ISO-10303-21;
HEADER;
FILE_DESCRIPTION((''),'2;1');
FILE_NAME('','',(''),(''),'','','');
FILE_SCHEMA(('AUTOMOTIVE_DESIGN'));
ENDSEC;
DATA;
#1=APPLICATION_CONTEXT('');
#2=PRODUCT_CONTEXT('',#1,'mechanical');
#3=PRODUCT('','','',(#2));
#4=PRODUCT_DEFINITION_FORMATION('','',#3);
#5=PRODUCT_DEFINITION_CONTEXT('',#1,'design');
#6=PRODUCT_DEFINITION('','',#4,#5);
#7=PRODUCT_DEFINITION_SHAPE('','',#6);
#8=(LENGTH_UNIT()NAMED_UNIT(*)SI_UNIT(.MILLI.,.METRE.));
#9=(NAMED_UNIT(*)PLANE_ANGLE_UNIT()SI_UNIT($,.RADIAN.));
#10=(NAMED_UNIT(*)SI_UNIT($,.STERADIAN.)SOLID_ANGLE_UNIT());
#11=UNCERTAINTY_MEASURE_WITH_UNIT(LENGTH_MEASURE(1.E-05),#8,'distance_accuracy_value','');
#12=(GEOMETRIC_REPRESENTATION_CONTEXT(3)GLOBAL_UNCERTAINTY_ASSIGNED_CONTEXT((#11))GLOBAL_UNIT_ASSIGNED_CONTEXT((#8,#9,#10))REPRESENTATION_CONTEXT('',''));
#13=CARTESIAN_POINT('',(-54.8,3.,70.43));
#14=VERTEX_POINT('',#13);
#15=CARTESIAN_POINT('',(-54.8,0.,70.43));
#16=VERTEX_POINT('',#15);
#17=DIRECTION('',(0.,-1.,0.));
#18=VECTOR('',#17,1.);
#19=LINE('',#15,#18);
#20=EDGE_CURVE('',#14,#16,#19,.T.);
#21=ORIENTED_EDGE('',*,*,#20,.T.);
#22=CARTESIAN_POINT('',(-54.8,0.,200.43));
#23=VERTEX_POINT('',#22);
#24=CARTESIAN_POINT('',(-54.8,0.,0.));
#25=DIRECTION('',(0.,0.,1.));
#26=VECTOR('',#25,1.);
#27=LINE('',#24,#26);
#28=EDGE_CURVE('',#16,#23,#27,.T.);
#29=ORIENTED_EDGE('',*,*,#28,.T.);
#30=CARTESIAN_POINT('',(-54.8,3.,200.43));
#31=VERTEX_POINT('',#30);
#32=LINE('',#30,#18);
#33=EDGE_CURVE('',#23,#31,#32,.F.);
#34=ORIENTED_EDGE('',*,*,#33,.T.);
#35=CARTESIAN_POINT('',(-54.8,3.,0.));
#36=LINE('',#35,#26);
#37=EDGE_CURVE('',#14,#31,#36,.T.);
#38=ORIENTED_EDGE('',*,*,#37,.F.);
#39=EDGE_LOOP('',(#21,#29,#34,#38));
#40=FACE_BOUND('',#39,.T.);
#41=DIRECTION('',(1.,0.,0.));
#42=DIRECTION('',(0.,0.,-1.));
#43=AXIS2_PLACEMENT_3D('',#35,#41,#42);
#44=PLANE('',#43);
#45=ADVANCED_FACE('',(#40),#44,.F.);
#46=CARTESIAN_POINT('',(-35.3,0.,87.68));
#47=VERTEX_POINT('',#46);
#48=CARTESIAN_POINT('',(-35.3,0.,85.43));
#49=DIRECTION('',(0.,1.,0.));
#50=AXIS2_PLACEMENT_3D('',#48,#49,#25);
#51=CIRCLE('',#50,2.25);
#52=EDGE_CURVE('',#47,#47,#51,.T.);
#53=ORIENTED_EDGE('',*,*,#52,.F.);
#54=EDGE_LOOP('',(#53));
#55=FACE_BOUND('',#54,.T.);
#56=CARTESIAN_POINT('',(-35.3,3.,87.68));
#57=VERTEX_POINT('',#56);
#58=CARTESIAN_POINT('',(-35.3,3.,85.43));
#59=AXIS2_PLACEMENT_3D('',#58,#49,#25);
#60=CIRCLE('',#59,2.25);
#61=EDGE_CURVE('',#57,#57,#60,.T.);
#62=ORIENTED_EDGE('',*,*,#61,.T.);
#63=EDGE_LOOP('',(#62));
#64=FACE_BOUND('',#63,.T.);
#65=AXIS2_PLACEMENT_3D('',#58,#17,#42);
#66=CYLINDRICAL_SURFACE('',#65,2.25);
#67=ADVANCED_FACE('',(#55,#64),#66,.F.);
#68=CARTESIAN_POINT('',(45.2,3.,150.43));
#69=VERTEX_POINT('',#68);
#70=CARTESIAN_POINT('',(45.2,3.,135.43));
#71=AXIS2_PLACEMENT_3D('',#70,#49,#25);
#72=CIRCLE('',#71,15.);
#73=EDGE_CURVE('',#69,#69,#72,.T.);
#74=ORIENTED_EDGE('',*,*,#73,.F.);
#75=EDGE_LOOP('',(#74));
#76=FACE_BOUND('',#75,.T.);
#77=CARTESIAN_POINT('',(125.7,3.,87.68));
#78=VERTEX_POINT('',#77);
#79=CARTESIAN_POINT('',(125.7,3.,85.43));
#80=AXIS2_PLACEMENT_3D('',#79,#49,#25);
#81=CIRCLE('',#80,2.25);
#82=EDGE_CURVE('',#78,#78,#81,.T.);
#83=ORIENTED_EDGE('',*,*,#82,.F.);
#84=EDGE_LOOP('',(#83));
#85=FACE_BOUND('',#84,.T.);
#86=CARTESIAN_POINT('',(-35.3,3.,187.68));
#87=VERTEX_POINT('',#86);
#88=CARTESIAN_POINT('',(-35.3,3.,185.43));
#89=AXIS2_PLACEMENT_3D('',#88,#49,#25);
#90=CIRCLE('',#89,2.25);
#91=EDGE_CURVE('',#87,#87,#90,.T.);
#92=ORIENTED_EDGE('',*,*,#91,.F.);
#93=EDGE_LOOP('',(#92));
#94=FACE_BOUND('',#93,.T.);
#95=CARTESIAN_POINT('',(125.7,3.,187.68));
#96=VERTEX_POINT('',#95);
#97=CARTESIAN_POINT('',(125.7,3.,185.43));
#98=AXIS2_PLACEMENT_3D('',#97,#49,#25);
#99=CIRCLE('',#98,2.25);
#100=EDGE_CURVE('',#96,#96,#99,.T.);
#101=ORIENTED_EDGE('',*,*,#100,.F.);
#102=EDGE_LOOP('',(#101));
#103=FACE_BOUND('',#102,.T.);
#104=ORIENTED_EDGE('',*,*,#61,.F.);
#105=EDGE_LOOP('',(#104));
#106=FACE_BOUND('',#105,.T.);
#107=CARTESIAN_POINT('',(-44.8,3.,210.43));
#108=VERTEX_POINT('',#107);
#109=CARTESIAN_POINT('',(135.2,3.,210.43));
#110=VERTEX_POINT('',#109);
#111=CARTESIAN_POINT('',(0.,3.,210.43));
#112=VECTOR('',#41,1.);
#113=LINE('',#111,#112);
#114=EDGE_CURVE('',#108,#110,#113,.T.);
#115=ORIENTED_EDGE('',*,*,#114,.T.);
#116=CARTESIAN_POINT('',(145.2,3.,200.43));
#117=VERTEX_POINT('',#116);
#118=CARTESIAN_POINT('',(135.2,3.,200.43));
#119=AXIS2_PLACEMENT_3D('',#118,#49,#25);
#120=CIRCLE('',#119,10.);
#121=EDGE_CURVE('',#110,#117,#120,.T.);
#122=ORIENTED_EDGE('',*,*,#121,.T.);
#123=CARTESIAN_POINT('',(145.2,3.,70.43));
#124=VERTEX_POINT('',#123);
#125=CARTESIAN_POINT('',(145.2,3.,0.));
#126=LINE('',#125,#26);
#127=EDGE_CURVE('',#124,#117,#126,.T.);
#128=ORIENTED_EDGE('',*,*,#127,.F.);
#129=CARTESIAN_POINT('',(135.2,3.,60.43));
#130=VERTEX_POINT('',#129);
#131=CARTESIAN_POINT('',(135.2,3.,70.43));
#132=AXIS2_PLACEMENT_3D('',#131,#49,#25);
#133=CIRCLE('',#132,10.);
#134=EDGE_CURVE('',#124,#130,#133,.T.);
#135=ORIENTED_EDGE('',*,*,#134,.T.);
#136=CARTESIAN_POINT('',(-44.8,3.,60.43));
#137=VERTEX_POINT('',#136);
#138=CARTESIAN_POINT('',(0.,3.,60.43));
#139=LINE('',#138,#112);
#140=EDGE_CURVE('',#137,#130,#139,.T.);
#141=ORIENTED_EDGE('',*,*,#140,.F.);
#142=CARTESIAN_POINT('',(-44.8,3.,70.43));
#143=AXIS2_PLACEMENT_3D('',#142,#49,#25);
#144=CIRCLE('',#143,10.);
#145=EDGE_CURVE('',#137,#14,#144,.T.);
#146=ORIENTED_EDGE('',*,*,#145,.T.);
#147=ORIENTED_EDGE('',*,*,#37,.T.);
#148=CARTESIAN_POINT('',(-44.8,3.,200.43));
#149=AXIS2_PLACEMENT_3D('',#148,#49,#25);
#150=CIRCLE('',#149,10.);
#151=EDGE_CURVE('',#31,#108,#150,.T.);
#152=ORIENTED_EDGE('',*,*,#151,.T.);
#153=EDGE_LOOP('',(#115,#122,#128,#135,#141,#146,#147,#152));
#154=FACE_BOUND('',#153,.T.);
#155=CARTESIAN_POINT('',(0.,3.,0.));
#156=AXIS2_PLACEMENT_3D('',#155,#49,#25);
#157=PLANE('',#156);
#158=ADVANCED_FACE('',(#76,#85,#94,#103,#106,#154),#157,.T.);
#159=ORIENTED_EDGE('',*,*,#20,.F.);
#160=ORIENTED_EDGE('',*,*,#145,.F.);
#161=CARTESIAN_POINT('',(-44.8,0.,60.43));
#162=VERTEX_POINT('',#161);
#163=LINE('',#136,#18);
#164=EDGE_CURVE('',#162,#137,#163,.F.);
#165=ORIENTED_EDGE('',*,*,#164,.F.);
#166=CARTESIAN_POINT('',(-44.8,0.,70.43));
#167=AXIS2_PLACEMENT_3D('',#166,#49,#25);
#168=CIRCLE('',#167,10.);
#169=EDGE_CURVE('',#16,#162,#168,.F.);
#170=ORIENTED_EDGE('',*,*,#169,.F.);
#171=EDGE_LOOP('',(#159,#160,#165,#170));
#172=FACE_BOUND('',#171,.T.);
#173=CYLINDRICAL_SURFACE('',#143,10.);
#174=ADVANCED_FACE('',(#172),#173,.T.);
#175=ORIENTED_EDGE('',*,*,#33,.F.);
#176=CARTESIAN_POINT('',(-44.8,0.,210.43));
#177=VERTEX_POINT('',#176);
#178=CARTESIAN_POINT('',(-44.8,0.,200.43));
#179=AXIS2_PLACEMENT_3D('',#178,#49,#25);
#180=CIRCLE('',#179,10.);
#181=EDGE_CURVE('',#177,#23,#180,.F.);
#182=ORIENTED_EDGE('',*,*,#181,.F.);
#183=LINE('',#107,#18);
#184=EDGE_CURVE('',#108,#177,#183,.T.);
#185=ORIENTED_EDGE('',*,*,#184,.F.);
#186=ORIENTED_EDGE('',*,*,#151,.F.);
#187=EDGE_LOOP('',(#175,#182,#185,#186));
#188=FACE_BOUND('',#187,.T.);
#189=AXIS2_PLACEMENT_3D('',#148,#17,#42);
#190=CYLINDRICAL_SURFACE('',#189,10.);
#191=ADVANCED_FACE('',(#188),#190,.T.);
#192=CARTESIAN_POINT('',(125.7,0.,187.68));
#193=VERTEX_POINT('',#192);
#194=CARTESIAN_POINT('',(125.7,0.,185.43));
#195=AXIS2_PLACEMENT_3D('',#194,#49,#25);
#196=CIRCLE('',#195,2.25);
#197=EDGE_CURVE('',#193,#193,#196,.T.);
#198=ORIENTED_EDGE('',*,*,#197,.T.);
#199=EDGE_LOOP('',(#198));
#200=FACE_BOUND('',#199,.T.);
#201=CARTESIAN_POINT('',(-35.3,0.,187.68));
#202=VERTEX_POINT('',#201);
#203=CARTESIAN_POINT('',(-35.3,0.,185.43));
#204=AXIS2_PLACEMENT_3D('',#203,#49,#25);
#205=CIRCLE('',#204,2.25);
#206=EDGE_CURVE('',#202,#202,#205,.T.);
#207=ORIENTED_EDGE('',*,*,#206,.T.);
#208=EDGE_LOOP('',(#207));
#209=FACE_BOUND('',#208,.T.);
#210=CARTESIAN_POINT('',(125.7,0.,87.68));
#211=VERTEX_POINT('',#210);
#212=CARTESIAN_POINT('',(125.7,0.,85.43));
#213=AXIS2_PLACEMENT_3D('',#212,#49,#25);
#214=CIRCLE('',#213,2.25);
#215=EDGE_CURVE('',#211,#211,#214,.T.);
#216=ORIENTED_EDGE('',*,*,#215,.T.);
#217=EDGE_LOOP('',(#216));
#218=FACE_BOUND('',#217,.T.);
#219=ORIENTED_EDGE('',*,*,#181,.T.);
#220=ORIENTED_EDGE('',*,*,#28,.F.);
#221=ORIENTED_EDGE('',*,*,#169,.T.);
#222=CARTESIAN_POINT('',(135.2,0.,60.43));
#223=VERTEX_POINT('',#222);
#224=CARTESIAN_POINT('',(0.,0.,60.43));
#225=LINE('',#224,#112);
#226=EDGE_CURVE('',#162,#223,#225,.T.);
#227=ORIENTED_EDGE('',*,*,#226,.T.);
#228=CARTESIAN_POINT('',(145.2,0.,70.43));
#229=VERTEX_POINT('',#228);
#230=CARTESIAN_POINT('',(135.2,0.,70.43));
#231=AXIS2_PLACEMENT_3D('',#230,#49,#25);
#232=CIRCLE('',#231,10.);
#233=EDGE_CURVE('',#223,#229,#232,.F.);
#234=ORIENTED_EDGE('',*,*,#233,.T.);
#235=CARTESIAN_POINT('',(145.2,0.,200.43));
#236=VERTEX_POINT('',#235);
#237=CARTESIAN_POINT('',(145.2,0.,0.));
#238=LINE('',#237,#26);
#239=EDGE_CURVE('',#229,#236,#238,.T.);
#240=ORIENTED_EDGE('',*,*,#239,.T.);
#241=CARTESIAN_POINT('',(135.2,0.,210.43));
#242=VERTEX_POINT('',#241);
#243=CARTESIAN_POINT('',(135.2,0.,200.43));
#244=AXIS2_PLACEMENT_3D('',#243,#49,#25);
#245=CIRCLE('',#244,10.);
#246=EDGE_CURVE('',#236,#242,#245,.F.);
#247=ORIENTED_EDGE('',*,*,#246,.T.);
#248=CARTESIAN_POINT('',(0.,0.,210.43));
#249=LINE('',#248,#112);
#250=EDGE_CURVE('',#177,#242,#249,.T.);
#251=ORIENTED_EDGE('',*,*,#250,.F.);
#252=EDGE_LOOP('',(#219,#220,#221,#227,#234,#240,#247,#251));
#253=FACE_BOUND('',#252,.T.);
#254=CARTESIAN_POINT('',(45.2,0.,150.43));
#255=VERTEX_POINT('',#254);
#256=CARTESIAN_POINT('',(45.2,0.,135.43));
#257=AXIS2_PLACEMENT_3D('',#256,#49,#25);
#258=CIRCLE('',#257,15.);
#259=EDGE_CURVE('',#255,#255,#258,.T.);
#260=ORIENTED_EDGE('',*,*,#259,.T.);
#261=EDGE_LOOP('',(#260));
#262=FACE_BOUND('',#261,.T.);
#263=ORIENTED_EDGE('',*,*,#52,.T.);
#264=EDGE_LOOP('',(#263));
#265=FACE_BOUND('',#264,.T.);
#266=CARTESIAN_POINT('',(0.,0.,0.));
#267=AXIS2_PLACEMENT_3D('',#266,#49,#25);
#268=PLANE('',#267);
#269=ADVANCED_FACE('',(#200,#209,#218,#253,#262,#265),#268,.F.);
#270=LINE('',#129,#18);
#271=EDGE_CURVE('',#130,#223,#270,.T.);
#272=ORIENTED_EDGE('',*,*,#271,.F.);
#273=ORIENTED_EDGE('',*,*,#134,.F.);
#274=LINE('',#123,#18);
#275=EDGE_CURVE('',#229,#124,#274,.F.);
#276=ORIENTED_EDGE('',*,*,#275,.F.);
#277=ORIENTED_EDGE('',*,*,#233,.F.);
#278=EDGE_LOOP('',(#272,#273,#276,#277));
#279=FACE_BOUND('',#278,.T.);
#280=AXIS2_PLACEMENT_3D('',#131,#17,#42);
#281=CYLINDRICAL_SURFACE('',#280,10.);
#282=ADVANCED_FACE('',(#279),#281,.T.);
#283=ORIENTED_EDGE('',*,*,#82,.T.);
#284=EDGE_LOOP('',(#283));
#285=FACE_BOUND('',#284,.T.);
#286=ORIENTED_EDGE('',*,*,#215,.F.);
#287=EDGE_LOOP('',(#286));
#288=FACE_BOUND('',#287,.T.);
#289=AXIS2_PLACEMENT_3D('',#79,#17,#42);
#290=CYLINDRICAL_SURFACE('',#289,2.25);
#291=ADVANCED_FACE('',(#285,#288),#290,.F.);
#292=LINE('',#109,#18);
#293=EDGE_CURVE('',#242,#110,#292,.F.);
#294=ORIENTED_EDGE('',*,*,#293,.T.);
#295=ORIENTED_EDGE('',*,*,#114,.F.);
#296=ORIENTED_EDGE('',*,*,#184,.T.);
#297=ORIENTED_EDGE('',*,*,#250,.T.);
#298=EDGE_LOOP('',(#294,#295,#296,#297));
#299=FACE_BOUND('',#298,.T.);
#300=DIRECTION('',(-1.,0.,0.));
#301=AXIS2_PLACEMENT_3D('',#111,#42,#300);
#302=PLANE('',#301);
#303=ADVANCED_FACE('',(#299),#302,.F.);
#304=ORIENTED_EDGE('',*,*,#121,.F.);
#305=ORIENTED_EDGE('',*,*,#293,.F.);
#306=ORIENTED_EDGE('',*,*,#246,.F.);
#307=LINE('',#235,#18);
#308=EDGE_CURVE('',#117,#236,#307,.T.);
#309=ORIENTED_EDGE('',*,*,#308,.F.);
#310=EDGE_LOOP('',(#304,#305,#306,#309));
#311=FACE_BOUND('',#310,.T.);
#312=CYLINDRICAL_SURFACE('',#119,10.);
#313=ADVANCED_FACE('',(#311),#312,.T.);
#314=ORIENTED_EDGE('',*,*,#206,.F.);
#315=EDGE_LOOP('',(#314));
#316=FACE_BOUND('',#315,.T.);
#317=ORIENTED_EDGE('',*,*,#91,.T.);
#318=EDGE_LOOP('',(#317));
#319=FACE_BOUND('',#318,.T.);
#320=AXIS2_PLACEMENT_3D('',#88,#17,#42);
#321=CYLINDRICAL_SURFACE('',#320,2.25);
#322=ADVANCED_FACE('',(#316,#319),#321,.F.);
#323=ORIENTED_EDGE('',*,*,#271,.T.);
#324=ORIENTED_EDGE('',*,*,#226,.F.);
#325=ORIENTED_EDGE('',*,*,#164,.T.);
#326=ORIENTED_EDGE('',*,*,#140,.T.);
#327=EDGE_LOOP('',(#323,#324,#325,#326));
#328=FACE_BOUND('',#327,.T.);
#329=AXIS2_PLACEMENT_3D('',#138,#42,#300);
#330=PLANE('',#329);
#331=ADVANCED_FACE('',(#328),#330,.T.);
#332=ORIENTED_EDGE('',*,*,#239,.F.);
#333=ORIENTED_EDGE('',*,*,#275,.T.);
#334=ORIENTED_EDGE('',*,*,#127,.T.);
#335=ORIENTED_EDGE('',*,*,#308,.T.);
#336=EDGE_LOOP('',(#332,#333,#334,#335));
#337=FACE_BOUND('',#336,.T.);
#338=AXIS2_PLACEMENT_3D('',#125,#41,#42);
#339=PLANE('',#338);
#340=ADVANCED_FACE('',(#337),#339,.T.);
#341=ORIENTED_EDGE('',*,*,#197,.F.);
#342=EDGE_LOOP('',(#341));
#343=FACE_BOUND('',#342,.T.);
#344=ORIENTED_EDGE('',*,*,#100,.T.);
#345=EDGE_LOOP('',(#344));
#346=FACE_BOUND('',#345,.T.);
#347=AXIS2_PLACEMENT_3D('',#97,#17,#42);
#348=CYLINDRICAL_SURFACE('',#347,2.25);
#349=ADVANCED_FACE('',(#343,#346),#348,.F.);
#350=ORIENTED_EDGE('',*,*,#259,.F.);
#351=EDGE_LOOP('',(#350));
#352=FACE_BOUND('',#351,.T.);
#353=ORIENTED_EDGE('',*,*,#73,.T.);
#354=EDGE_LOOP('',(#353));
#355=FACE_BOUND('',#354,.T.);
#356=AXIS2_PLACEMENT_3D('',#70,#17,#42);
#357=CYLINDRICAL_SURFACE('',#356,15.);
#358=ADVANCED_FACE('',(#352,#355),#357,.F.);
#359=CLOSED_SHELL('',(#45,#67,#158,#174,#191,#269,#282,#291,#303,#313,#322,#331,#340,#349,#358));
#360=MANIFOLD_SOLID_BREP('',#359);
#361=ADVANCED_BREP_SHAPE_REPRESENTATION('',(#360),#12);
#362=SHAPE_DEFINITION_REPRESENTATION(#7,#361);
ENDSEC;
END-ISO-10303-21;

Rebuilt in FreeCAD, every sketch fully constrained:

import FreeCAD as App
import Part
import Sketcher

V = App.Vector
Q = App.Units.Quantity


def edges_at(feature, points):
    """Names of the edges that pass closest to the given points."""
    edges = feature.Shape.Edges
    near = lambda p: min(range(len(edges)), key=lambda i: edges[i].distToShape(Part.Vertex(*p))[0])
    return sorted({f"Edge{near(p) + 1}" for p in points})

doc = App.newDocument("Part")
params = doc.addObject("Spreadsheet::Sheet", "Params")
for row, (alias, value) in enumerate([
    ("sketch1_diameter", "30 mm"),
    ("sketch1_diameter2", "4.5 mm"),
    ("sketch1_width", "200 mm"),
    ("sketch1_height", "150 mm"),
    ("pad1_length", "3 mm"),
    ("fillet_radius", "10 mm"),
], start=1):
    params.set(f"A{row}", alias)
    params.set(f"B{row}", "=" + value)
    params.setAlias(f"B{row}", alias)

body = doc.addObject("PartDesign::Body", "Body")

# Sketch on XZ plane
sketch1 = doc.addObject("Sketcher::SketchObject", "Sketch")
body.addObject(sketch1)
sketch1.AttachmentSupport = (doc.XZ_Plane, [""])
sketch1.MapMode = "FlatFace"
sketch1.addGeometry(Part.LineSegment(V(-54.8, 60.4, 0), V(-54.8, 210.4, 0)), False)
sketch1.addGeometry(Part.LineSegment(V(-54.8, 210.4, 0), V(145.2, 210.4, 0)), False)
sketch1.addGeometry(Part.LineSegment(V(145.2, 210.4, 0), V(145.2, 60.4, 0)), False)
sketch1.addGeometry(Part.LineSegment(V(145.2, 60.4, 0), V(-54.8, 60.4, 0)), False)
sketch1.addGeometry(Part.Circle(V(-35.3, 185.4, 0), V(0, 0, 1), 2.2), False)
sketch1.addGeometry(Part.Circle(V(125.7, 185.4, 0), V(0, 0, 1), 2.2), False)
sketch1.addGeometry(Part.Circle(V(-35.3, 85.4, 0), V(0, 0, 1), 2.2), False)
sketch1.addGeometry(Part.Circle(V(45.2, 135.4, 0), V(0, 0, 1), 15), False)
sketch1.addGeometry(Part.Circle(V(125.7, 85.4, 0), V(0, 0, 1), 2.2), False)
sketch1.addConstraint(Sketcher.Constraint("Coincident", 0, 2, 1, 1))
sketch1.addConstraint(Sketcher.Constraint("Coincident", 1, 2, 2, 1))
sketch1.addConstraint(Sketcher.Constraint("Coincident", 2, 2, 3, 1))
sketch1.addConstraint(Sketcher.Constraint("Coincident", 3, 2, 0, 1))
sketch1.addConstraint(Sketcher.Constraint("Vertical", 0))
sketch1.addConstraint(Sketcher.Constraint("Horizontal", 1))
sketch1.addConstraint(Sketcher.Constraint("Vertical", 2))
sketch1.addConstraint(Sketcher.Constraint("Horizontal", 3))
sketch1.addConstraint(Sketcher.Constraint("Equal", 4, 5))
sketch1.addConstraint(Sketcher.Constraint("Equal", 5, 6))
sketch1.addConstraint(Sketcher.Constraint("Equal", 6, 8))
sketch1.addConstraint(Sketcher.Constraint("Horizontal", 4, 3, 5, 3))
sketch1.addConstraint(Sketcher.Constraint("Horizontal", 6, 3, 8, 3))
sketch1.addConstraint(Sketcher.Constraint("Vertical", 4, 3, 6, 3))
sketch1.addConstraint(Sketcher.Constraint("Vertical", 5, 3, 8, 3))
sketch1.addConstraint(Sketcher.Constraint("Diameter", 7, Q("30 mm")))
sketch1.addConstraint(Sketcher.Constraint("Diameter", 4, Q("4.5 mm")))
sketch1.addConstraint(Sketcher.Constraint("DistanceX", 1, 1, 1, 2, Q("200 mm")))
sketch1.addConstraint(Sketcher.Constraint("DistanceY", 0, 1, 0, 2, Q("150 mm")))
sketch1.addConstraint(Sketcher.Constraint("DistanceX", 4, 3, 5, 3, Q("161 mm")))
sketch1.addConstraint(Sketcher.Constraint("DistanceY", 6, 3, 4, 3, Q("100 mm")))
sketch1.addConstraint(Sketcher.Constraint("DistanceY", 7, 3, 4, 3, Q("50 mm")))
sketch1.addConstraint(Sketcher.Constraint("DistanceY", 4, 3, 0, 2, Q("25 mm")))
sketch1.addConstraint(Sketcher.Constraint("DistanceX", 0, 2, 7, 3, Q("100 mm")))
sketch1.addConstraint(Sketcher.Constraint("DistanceX", 4, 3, -1, 1, Q("35.3 mm")))
sketch1.addConstraint(Sketcher.Constraint("DistanceX", -1, 1, 7, 3, Q("45.2 mm")))
sketch1.addConstraint(Sketcher.Constraint("DistanceY", -1, 1, 4, 3, Q("185.43 mm")))
sketch1.setExpression("Constraints[15]", "Params.sketch1_diameter")
sketch1.setExpression("Constraints[16]", "Params.sketch1_diameter2")
sketch1.setExpression("Constraints[17]", "Params.sketch1_width")
sketch1.setExpression("Constraints[18]", "Params.sketch1_height")
pad1 = doc.addObject("PartDesign::Pad", "Pad")
body.addObject(pad1)
pad1.Profile = sketch1
pad1.setExpression("Length", "Params.pad1_length")
pad1.Reversed = True
doc.recompute()

fillet = doc.addObject("PartDesign::Fillet", "Fillet")
body.addObject(fillet)
fillet.Base = (pad1, edges_at(pad1, [
    (145.2, 1.5, 210.43),
    (-54.8, 1.5, 210.43),
    (-54.8, 1.5, 60.43),
    (145.2, 1.5, 60.43),
]))
fillet.setExpression("Radius", "Params.fillet_radius")

doc.recompute()
